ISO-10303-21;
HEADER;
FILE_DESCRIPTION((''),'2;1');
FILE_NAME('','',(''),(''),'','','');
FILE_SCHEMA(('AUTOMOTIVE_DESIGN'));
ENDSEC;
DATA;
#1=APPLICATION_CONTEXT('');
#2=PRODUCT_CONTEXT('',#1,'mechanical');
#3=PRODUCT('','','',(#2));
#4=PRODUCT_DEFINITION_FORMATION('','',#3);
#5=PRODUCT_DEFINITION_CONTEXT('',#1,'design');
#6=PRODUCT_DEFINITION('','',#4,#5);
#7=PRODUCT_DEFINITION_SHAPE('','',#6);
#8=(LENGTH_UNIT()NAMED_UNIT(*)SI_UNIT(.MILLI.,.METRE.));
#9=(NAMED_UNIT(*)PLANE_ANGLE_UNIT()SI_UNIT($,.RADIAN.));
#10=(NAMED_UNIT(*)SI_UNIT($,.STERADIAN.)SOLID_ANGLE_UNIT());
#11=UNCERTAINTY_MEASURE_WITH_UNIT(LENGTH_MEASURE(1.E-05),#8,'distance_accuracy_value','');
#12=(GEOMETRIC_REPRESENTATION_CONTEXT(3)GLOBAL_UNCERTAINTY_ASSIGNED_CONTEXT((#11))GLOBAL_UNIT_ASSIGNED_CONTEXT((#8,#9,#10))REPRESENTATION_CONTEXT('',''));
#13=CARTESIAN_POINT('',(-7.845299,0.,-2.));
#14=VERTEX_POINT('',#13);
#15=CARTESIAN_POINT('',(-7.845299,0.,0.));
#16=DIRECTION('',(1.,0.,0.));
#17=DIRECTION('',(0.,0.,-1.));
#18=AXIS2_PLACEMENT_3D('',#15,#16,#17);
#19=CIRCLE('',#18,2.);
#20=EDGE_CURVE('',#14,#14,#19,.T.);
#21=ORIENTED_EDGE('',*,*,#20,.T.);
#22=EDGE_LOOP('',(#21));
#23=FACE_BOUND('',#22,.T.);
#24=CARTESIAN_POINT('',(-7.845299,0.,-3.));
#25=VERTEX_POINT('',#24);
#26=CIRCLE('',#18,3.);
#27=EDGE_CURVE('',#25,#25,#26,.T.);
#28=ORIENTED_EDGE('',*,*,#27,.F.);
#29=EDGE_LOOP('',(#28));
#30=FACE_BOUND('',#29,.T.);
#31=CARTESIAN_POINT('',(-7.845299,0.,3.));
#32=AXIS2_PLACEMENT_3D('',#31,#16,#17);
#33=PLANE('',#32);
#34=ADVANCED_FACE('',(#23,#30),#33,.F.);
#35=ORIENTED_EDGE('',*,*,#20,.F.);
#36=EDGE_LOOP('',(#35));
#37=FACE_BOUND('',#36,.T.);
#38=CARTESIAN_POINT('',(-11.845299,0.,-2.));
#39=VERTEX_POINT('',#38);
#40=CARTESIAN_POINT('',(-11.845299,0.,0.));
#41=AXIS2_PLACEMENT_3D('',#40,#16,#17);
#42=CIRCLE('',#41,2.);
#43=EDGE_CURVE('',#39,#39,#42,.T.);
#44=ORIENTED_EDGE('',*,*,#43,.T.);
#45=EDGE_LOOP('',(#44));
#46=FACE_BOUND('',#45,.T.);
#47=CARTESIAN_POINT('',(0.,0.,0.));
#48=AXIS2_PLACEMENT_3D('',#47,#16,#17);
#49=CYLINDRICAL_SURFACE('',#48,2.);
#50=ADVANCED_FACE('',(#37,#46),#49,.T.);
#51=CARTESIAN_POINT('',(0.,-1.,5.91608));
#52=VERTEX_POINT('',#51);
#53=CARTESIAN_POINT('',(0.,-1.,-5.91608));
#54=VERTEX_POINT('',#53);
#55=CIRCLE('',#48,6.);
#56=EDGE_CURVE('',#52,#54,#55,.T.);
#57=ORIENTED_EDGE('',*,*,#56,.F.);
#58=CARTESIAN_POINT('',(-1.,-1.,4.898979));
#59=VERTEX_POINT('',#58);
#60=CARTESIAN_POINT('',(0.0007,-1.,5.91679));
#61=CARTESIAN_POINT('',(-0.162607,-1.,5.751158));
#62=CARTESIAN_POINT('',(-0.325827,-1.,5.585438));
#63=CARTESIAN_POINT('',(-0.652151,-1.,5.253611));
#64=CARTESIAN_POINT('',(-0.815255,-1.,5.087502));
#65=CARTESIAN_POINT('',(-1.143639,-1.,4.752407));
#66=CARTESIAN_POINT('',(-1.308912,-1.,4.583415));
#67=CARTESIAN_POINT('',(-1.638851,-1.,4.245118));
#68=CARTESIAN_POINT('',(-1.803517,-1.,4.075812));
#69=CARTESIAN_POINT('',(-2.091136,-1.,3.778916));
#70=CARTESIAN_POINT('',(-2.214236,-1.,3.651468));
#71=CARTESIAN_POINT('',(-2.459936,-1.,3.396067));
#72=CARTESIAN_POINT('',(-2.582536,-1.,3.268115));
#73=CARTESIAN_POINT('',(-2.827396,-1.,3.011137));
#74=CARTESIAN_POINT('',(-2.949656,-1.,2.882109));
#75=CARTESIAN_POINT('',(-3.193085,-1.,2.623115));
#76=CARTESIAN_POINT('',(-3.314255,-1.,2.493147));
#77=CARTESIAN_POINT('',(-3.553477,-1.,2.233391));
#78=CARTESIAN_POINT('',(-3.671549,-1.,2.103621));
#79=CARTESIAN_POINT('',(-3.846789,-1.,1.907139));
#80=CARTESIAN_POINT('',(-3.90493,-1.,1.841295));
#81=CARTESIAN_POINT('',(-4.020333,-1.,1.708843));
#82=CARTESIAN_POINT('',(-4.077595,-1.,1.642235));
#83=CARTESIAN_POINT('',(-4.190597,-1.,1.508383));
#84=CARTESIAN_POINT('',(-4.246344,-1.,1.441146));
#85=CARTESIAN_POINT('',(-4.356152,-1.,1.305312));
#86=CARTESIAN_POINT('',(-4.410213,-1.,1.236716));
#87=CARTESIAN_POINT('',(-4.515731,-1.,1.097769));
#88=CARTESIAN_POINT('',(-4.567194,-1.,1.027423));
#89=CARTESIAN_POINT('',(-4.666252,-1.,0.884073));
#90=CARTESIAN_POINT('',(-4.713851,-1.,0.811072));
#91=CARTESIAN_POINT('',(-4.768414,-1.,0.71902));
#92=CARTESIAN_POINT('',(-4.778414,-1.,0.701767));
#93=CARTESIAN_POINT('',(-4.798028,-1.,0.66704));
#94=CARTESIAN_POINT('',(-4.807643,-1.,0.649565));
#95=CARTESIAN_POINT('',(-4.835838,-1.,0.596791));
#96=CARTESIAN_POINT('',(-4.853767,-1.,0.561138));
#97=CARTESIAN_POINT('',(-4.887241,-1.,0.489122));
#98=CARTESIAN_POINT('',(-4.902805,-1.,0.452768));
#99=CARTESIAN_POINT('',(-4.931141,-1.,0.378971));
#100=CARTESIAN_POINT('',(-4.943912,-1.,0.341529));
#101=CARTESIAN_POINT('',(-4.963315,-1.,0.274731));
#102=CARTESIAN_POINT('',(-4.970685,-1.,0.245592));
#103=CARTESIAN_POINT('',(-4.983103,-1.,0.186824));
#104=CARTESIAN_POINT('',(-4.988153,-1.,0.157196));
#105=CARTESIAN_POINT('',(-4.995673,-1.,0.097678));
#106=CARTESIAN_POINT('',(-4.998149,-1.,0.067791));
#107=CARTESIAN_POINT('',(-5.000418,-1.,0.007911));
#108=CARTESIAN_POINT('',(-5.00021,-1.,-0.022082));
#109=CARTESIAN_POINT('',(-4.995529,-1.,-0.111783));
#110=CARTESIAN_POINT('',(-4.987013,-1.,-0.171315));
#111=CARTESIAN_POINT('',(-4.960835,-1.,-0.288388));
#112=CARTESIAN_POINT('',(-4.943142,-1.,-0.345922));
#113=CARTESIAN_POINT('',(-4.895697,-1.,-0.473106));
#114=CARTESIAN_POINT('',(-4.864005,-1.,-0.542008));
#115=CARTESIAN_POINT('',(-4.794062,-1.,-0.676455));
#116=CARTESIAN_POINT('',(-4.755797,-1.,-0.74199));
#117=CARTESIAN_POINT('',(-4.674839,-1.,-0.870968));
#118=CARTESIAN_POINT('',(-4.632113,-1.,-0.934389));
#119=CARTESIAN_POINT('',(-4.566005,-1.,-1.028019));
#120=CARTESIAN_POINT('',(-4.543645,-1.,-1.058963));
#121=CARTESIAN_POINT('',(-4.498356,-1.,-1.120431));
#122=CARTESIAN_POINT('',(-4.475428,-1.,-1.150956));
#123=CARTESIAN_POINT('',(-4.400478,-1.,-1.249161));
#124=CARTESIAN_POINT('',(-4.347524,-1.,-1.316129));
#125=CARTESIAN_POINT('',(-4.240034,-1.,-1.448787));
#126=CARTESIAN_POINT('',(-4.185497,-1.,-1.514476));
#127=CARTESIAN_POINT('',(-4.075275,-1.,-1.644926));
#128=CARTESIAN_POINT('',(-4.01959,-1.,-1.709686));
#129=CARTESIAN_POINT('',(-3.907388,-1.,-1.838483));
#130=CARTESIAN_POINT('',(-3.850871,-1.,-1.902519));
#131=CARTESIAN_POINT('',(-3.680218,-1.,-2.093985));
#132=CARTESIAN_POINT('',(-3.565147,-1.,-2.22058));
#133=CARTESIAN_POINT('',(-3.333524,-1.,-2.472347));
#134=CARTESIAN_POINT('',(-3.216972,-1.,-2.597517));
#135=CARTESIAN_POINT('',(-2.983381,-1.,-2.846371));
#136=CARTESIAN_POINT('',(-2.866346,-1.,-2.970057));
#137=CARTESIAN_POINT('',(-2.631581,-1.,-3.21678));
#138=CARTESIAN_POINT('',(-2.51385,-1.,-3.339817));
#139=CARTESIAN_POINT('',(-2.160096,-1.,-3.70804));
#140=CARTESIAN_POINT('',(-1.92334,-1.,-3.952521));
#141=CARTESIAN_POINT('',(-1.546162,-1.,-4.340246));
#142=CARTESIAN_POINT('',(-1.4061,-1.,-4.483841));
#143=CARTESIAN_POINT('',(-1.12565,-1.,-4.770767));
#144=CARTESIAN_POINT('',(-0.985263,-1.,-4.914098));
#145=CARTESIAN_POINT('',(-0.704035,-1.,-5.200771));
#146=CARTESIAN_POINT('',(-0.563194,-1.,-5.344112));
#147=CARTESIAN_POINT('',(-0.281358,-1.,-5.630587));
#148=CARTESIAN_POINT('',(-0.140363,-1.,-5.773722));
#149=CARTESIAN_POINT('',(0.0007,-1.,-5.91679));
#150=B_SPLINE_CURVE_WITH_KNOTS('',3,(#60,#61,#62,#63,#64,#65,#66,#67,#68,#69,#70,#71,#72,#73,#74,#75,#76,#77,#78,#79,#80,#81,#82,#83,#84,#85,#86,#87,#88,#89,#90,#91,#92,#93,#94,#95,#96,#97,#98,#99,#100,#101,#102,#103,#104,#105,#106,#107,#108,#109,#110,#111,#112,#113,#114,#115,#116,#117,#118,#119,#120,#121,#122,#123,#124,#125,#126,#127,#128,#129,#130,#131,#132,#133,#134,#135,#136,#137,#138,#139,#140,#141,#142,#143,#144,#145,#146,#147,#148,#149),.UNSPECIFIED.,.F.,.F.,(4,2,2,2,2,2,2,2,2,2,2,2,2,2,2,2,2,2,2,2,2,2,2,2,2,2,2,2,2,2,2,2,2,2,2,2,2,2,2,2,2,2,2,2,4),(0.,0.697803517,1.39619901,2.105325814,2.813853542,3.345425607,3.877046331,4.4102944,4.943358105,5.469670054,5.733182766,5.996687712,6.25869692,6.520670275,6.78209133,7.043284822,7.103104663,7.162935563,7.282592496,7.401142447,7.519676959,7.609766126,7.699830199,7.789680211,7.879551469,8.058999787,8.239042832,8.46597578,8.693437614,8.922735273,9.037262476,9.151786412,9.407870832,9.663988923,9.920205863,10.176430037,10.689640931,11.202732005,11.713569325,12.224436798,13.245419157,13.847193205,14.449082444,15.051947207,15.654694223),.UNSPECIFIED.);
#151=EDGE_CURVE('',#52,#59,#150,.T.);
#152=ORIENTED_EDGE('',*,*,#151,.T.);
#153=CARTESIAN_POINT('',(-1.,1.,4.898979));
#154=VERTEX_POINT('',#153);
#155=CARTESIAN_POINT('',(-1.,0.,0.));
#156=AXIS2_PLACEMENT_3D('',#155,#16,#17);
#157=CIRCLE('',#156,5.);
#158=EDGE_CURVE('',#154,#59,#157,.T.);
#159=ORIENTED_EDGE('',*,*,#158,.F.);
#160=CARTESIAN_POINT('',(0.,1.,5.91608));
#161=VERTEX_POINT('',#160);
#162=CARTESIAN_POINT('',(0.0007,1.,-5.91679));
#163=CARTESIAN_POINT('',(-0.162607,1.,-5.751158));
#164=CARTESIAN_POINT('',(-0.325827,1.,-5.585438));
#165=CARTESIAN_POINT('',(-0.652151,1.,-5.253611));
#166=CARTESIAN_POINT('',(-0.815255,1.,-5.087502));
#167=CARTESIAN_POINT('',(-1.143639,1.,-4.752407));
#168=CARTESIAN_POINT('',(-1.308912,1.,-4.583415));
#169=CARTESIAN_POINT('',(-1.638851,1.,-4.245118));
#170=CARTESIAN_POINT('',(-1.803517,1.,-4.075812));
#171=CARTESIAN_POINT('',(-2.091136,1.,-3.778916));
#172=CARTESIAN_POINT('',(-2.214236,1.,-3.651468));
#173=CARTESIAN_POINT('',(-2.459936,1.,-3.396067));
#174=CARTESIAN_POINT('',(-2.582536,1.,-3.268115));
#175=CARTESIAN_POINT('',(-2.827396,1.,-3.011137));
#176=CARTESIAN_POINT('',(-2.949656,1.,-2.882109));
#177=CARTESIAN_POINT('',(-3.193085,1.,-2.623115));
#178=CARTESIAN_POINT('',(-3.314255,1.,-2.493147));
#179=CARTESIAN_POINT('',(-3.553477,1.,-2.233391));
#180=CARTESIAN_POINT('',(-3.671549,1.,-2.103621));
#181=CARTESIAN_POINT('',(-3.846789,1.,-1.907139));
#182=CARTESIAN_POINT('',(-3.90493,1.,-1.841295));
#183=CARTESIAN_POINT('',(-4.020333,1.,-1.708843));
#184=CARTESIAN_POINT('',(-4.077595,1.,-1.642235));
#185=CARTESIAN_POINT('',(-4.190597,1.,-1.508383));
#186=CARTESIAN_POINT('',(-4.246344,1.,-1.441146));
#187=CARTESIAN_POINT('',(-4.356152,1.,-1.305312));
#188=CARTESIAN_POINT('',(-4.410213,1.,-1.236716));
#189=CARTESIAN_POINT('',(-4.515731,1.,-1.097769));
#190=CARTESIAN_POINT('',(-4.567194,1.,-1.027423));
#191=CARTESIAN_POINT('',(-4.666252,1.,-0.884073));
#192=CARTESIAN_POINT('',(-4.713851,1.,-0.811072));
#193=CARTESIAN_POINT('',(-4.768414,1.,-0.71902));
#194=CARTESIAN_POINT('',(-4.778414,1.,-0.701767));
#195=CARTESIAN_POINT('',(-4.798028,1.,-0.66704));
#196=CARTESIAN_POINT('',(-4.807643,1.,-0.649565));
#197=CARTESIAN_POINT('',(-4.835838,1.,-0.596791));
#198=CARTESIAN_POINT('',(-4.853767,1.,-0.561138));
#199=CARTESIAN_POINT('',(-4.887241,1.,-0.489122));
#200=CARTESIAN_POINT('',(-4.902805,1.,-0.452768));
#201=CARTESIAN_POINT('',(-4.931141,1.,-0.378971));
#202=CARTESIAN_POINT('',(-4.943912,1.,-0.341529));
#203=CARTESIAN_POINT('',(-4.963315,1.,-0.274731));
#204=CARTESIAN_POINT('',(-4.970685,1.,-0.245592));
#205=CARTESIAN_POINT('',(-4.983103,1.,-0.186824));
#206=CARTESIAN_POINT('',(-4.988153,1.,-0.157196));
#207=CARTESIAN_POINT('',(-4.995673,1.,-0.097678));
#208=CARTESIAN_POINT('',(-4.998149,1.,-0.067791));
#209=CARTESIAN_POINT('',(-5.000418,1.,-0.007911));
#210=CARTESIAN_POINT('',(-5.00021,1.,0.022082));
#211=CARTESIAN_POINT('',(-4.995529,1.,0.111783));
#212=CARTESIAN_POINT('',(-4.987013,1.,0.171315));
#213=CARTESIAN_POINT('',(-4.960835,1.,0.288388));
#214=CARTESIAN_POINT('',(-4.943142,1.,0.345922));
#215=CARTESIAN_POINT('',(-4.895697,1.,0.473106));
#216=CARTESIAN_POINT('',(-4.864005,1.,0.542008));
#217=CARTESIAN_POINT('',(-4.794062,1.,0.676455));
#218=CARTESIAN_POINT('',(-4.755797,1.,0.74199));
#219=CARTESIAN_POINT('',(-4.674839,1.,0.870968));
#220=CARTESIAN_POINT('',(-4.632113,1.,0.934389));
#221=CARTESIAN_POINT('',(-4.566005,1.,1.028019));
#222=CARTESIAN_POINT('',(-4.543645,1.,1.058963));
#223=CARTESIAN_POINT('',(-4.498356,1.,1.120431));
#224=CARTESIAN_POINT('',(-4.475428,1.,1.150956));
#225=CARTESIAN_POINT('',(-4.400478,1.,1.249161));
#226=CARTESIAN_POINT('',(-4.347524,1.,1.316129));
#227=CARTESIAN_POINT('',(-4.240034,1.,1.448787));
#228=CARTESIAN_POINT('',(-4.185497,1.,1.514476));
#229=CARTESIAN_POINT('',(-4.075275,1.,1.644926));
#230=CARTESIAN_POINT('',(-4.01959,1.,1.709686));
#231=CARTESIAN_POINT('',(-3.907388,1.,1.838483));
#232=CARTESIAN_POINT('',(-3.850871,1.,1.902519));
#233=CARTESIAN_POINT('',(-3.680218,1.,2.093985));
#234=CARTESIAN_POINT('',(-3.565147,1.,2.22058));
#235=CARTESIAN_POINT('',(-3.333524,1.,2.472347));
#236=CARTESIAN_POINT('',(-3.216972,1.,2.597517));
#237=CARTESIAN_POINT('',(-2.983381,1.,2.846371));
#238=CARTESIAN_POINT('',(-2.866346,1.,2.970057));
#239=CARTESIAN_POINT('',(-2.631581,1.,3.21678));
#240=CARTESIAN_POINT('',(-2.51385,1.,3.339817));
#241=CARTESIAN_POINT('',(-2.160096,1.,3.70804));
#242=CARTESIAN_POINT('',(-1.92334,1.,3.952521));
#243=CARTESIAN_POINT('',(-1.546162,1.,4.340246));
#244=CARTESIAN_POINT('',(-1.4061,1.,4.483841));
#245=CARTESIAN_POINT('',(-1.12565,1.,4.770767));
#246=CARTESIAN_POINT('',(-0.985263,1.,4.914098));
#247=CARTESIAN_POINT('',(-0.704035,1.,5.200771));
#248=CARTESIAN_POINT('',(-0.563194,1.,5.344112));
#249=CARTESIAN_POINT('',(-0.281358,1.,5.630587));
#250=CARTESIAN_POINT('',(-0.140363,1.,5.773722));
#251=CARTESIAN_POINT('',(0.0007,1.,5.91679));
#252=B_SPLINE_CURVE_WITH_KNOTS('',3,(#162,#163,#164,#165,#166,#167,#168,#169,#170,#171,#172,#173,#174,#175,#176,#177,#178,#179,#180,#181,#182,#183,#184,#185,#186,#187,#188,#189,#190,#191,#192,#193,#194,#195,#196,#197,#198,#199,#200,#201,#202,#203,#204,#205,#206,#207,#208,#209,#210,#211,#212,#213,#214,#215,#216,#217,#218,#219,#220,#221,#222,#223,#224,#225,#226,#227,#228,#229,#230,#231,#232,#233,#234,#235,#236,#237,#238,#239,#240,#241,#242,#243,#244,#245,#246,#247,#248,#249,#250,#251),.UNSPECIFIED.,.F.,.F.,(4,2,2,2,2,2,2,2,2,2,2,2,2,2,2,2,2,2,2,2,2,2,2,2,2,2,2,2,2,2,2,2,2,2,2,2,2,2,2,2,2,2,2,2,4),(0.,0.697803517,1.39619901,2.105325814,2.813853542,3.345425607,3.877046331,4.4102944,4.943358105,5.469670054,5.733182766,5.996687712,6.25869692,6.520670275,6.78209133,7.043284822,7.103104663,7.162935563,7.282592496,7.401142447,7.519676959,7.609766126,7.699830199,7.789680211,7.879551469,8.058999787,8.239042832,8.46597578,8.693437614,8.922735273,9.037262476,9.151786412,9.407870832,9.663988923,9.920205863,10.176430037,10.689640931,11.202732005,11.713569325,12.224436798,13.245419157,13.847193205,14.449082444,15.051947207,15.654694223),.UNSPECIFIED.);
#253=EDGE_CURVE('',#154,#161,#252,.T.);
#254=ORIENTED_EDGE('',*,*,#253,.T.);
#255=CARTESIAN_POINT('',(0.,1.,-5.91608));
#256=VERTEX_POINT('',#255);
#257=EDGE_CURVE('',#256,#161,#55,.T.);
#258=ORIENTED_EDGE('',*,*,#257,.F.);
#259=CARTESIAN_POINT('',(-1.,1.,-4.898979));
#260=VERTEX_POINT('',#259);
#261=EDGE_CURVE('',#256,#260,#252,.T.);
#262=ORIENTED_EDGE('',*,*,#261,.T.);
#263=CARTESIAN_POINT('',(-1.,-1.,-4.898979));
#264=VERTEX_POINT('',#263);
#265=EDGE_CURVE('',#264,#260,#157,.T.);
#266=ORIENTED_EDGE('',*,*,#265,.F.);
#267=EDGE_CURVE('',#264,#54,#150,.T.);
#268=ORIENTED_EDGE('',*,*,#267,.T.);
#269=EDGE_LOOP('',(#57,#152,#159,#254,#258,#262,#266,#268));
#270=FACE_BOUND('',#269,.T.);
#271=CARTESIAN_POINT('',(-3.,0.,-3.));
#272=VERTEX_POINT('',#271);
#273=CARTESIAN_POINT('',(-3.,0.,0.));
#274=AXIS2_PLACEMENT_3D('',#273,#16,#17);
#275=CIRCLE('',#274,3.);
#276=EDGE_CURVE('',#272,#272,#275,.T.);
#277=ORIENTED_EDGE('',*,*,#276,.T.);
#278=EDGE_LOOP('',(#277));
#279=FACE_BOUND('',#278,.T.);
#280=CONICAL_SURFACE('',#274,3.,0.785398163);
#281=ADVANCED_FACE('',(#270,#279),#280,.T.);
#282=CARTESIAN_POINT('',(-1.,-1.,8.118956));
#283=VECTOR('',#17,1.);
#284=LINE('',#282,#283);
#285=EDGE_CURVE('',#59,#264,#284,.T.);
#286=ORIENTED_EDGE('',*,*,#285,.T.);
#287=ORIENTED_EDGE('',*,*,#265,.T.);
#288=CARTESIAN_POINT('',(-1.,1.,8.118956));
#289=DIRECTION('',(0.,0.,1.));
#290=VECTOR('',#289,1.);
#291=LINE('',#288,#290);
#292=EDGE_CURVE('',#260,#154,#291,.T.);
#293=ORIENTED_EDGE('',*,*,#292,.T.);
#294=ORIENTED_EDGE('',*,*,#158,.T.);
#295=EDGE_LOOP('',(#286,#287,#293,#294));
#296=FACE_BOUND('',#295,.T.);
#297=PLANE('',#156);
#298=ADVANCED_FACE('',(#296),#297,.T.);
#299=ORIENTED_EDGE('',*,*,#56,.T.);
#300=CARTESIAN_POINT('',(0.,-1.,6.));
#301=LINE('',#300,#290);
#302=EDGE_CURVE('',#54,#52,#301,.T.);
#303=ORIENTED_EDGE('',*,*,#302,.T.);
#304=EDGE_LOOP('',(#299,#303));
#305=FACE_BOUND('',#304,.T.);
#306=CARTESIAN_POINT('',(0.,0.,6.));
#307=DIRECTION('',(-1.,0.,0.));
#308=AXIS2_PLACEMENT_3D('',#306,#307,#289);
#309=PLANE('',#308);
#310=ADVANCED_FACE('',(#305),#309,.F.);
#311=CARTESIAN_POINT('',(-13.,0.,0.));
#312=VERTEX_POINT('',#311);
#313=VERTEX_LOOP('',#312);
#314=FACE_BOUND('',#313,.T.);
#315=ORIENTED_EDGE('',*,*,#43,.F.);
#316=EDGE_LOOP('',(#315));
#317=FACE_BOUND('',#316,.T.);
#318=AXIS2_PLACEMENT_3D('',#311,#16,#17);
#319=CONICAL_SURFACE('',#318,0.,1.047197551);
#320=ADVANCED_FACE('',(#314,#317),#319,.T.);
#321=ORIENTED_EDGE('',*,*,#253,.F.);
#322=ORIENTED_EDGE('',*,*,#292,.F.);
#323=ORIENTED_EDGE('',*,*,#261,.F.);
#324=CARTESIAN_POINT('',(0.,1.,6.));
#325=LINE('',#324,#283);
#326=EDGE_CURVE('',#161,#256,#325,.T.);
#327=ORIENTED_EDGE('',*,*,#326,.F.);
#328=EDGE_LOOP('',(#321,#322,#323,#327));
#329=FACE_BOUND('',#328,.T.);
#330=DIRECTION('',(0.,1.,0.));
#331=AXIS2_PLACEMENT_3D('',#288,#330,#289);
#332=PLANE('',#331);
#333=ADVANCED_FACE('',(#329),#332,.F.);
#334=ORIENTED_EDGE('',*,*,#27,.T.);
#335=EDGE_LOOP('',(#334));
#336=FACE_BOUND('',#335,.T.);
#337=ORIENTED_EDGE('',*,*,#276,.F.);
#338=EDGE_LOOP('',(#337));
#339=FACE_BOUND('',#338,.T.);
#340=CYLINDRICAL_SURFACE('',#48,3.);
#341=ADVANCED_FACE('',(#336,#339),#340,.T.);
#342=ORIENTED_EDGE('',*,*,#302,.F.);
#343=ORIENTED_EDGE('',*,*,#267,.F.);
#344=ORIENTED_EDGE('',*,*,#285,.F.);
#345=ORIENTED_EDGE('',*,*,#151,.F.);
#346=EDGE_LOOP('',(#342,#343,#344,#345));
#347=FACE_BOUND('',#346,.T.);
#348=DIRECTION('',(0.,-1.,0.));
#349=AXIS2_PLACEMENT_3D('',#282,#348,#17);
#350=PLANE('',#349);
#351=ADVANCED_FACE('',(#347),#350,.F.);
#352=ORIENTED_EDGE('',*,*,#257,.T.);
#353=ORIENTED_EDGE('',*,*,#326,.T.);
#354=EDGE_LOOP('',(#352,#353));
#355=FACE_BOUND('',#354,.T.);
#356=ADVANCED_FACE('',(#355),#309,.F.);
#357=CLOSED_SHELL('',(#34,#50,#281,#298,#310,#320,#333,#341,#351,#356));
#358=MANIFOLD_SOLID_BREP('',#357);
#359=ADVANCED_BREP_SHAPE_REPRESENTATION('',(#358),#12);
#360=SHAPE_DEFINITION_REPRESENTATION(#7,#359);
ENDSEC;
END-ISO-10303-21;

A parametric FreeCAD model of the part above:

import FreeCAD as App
import Part
import Sketcher
Q = App.Units.Quantity

doc = App.newDocument("Part")
body = doc.addObject("PartDesign::Body", "Body")

sketch1 = doc.addObject("Sketcher::SketchObject", "Sketch")
body.addObject(sketch1)
sketch1.AttachmentSupport = (doc.XZ_Plane, [""])
sketch1.MapMode = "FlatFace"
sketch1.addGeometry([
    Part.LineSegment(App.Vector(-3, 3, 0), App.Vector(0, 6, 0)),
    Part.LineSegment(App.Vector(0, 6, 0), App.Vector(0, 0, 0)),
    Part.LineSegment(App.Vector(0, 0, 0), App.Vector(-13, 0, 0)),
    Part.LineSegment(App.Vector(-13, 0, 0), App.Vector(-11.8, 2, 0)),
    Part.LineSegment(App.Vector(-11.8, 2, 0), App.Vector(-7.8, 2, 0)),
    Part.LineSegment(App.Vector(-7.8, 2, 0), App.Vector(-7.8, 3, 0)),
    Part.LineSegment(App.Vector(-7.8, 3, 0), App.Vector(-3, 3, 0)),
], False)
sketch1.addConstraint([
    Sketcher.Constraint("Coincident", 0, 2, 1, 1),
    Sketcher.Constraint("Coincident", 1, 2, 2, 1),
    Sketcher.Constraint("Coincident", 2, 2, 3, 1),
    Sketcher.Constraint("Coincident", 3, 2, 4, 1),
    Sketcher.Constraint("Coincident", 4, 2, 5, 1),
    Sketcher.Constraint("Coincident", 5, 2, 6, 1),
    Sketcher.Constraint("Coincident", 6, 2, 0, 1),
    Sketcher.Constraint("Vertical", 1),
    Sketcher.Constraint("Horizontal", 2),
    Sketcher.Constraint("Horizontal", 4),
    Sketcher.Constraint("Vertical", 5),
    Sketcher.Constraint("Horizontal", 6),
    Sketcher.Constraint("Coincident", 1, 2, -1, 1),
    Sketcher.Constraint("DistanceX", 2, 2, 2, 1, 13.0),
    Sketcher.Constraint("DistanceX", 4, 1, 4, 2, 4.0),
    Sketcher.Constraint("DistanceY", 1, 2, 1, 1, 6.0),
    Sketcher.Constraint("DistanceY", 5, 1, 5, 2, 1.0),
    Sketcher.Constraint("Angle", 0, Q("45 deg")),
    Sketcher.Constraint("Angle", 3, Q("60 deg")),
    Sketcher.Constraint("DistanceY", -1, 1, 3, 2, 2.0),
])
revolution = doc.addObject("PartDesign::Revolution", "Revolution")
body.addObject(revolution)
revolution.Profile = sketch1
revolution.ReferenceAxis = (sketch1, ["H_Axis"])
revolution.Angle = 360

sketch2 = doc.addObject("Sketcher::SketchObject", "Sketch001")
body.addObject(sketch2)
sketch2.AttachmentSupport = (doc.YZ_Plane, [""])
sketch2.MapMode = "FlatFace"
sketch2.addGeometry([
    Part.LineSegment(App.Vector(1, 8.1, 0), App.Vector(-1, 8.1, 0)),
    Part.LineSegment(App.Vector(-1, 8.1, 0), App.Vector(-1, -8.1, 0)),
    Part.LineSegment(App.Vector(-1, -8.1, 0), App.Vector(1, -8.1, 0)),
    Part.LineSegment(App.Vector(1, -8.1, 0), App.Vector(1, 8.1, 0)),
], False)
sketch2.addConstraint([
    Sketcher.Constraint("Coincident", 0, 2, 1, 1),
    Sketcher.Constraint("Coincident", 1, 2, 2, 1),
    Sketcher.Constraint("Coincident", 2, 2, 3, 1),
    Sketcher.Constraint("Coincident", 3, 2, 0, 1),
    Sketcher.Constraint("Horizontal", 0),
    Sketcher.Constraint("Vertical", 1),
    Sketcher.Constraint("Horizontal", 2),
    Sketcher.Constraint("Vertical", 3),
    Sketcher.Constraint("Symmetric", 0, 2, 2, 2, -1, 1),
    Sketcher.Constraint("DistanceX", 0, 2, 0, 1, 2.0),
    Sketcher.Constraint("DistanceY", 1, 2, 1, 1, 16.237912),
])
pocket1 = doc.addObject("PartDesign::Pocket", "Pocket")
body.addObject(pocket1)
pocket1.Profile = sketch2
pocket1.Length = 1

doc.recompute()
